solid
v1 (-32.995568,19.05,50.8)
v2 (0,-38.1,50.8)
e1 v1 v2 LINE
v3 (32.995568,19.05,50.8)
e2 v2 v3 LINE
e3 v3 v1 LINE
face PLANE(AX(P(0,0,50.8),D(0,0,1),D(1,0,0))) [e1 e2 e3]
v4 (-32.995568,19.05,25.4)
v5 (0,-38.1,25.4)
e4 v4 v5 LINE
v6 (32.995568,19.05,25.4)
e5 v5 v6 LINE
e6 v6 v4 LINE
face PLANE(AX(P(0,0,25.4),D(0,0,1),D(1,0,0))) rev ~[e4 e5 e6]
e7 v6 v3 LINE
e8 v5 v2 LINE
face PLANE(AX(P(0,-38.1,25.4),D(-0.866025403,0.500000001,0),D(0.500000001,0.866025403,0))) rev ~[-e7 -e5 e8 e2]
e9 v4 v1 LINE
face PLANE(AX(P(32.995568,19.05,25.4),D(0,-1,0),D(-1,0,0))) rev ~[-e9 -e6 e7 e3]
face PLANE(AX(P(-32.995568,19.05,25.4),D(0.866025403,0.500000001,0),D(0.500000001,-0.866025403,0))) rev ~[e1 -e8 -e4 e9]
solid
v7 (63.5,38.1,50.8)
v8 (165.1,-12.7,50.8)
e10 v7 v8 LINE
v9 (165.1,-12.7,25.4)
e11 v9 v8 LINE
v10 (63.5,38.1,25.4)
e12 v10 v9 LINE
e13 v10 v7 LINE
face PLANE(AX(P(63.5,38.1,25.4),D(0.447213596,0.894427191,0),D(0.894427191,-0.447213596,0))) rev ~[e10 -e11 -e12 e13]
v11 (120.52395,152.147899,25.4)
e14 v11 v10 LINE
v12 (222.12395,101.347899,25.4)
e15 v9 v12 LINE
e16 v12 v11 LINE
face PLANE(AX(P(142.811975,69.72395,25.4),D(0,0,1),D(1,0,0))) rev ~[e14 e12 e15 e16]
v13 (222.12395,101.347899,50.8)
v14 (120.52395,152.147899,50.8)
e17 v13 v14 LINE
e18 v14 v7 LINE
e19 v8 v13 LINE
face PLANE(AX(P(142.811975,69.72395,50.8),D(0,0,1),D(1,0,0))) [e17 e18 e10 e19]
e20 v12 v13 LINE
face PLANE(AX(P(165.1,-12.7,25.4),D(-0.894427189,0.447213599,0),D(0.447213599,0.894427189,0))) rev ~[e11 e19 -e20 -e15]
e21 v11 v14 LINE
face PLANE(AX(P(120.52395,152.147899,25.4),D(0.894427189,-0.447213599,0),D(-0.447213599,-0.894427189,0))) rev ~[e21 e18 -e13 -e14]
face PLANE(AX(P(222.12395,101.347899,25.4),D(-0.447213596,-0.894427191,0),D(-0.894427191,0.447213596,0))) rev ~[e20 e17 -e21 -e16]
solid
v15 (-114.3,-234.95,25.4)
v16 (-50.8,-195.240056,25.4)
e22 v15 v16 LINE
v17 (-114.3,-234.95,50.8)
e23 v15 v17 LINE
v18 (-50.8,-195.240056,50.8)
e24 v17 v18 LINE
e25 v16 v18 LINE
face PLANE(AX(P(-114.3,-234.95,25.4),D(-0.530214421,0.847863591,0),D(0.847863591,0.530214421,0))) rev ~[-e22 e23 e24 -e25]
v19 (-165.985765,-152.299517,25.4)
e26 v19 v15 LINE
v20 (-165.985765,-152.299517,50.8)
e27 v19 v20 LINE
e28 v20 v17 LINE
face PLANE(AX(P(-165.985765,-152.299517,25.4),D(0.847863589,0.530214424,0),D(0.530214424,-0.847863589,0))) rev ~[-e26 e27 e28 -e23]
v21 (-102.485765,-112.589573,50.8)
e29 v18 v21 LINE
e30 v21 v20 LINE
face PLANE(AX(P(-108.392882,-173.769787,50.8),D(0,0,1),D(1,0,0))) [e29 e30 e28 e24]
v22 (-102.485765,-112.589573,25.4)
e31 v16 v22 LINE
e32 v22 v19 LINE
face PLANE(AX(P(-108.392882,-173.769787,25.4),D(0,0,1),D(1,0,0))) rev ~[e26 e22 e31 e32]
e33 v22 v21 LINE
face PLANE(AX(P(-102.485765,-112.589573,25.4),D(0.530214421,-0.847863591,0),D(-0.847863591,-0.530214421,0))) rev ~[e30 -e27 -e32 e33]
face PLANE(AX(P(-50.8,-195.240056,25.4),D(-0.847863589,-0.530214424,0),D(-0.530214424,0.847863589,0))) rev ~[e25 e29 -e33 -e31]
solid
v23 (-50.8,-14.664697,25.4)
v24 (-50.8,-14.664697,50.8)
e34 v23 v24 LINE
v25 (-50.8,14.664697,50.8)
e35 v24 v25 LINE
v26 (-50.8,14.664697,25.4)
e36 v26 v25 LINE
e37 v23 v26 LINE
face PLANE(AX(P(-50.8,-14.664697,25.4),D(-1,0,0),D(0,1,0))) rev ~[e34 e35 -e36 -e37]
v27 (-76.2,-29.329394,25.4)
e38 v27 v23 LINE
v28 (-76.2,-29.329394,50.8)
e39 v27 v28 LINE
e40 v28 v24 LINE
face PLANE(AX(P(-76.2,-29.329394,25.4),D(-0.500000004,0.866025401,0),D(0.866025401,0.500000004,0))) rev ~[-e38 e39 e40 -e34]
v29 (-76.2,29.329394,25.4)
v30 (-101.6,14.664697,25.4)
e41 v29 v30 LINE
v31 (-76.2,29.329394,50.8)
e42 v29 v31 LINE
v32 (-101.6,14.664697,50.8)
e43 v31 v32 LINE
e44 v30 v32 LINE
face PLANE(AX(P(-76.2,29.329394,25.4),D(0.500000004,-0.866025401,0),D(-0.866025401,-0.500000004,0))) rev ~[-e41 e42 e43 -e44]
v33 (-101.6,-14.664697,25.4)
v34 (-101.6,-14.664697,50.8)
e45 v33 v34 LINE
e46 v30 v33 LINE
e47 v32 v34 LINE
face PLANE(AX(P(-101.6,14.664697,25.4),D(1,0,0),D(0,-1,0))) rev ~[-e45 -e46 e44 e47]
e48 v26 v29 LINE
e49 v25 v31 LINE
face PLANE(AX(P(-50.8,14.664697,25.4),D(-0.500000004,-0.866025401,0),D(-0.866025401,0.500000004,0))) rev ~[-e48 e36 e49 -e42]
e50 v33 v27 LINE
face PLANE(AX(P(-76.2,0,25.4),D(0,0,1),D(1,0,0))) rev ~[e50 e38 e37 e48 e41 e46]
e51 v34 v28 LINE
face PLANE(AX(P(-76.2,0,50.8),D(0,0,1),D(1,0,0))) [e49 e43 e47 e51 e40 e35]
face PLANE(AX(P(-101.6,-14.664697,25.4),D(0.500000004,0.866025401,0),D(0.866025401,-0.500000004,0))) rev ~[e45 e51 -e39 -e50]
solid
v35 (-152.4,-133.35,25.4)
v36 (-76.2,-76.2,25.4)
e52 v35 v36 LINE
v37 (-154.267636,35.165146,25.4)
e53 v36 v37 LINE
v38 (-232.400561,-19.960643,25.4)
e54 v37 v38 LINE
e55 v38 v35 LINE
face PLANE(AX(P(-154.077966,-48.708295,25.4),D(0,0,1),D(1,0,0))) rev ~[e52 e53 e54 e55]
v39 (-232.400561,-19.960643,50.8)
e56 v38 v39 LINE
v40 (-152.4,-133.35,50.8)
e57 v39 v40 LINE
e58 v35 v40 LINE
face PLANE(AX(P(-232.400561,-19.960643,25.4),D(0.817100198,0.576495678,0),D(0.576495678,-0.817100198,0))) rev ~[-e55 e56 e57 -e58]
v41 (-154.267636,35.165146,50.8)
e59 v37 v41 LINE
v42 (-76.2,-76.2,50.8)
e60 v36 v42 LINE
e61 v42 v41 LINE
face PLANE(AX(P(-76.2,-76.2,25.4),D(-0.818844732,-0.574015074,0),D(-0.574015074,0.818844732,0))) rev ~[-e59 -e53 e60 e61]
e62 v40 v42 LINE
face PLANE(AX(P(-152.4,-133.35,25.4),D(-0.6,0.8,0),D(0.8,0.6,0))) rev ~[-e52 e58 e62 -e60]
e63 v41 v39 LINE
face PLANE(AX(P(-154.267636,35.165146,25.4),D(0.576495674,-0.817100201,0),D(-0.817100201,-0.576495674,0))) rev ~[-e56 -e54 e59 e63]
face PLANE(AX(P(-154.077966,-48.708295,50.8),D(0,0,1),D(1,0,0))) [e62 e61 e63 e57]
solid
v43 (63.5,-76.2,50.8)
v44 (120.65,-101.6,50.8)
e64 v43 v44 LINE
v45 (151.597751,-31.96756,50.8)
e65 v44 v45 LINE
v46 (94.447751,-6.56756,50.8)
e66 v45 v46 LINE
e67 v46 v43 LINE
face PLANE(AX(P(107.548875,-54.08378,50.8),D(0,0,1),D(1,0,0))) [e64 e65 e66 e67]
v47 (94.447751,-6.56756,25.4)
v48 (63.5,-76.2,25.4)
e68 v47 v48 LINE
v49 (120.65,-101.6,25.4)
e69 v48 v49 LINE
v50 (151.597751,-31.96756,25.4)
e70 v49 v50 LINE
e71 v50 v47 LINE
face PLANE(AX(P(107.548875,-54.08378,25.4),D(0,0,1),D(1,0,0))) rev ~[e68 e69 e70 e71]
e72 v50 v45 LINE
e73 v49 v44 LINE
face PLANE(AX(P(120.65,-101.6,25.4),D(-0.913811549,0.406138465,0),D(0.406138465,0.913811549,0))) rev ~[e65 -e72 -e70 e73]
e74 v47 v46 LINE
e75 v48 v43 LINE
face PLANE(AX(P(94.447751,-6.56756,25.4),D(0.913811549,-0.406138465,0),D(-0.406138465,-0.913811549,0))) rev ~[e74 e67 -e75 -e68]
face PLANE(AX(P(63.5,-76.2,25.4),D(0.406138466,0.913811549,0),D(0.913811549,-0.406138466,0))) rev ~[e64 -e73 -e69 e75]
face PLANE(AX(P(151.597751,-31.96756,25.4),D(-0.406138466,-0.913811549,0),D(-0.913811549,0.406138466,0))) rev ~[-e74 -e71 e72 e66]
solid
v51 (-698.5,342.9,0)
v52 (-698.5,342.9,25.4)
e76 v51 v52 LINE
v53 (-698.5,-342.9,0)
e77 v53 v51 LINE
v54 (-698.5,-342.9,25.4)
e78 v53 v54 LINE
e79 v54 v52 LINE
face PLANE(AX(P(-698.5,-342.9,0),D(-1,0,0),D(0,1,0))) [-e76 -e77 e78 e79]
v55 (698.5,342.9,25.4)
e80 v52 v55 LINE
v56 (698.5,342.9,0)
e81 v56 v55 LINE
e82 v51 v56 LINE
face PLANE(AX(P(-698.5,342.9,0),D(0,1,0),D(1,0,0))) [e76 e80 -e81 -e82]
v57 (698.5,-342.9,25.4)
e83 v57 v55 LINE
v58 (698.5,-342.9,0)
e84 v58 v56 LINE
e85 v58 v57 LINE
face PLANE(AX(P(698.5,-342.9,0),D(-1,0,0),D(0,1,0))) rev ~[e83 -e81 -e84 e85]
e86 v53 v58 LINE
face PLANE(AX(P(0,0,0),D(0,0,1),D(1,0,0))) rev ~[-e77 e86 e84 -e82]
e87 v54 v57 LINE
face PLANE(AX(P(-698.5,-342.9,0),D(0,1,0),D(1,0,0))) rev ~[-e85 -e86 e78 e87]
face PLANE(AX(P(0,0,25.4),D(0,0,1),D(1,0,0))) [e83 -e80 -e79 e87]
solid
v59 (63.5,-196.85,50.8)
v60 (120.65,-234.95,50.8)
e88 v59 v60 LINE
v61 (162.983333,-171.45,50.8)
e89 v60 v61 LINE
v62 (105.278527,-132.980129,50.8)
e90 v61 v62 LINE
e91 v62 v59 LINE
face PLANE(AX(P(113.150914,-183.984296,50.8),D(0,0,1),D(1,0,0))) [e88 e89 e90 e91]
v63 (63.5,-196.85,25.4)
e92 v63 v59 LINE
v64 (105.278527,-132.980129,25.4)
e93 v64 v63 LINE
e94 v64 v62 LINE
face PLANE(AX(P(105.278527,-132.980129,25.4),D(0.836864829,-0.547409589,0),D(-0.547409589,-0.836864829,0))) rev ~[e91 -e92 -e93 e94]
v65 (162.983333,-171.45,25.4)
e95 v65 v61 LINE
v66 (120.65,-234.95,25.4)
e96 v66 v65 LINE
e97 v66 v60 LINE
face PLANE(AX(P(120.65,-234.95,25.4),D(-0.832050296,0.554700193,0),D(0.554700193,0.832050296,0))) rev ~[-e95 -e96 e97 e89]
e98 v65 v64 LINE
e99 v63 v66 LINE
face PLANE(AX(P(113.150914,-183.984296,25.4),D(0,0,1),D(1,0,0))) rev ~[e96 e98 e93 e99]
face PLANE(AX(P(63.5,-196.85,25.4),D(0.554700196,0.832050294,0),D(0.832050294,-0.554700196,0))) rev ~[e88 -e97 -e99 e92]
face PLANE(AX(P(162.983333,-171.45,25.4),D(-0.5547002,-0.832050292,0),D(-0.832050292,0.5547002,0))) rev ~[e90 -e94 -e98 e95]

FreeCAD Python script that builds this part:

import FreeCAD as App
import Part
import Sketcher
Q = App.Units.Quantity


def add_polygon(sketch, points):
    """Adds a closed chain of lines whose ends are joined by coincident constraints."""
    first, n = sketch.GeometryCount, len(points)
    for a, b in zip(points, points[1:] + points[:1]):
        sketch.addGeometry(Part.LineSegment(App.Vector(*a, 0), App.Vector(*b, 0)), False)
    for i in range(n):
        sketch.addConstraint(Sketcher.Constraint("Coincident", first + i, 2, first + (i + 1) % n, 1))

doc = App.newDocument("Part")
params = doc.addObject("Spreadsheet::Sheet", "Params")
for row, (alias, value) in enumerate([
    ("sketch1_width", "55 in"),
    ("sketch1_height", "27 in"),
    ("pad1_length", "1 in"),
    ("sketch2_length", "3 in"),
    ("sketch2_length2", "3.75 in"),
    ("pad2_length", "1 in"),
], start=1):
    params.set(f"A{row}", alias)
    params.set(f"B{row}", "=" + value)
    params.setAlias(f"B{row}", alias)

body = doc.addObject("PartDesign::Body", "Body")

# Sketch on XY plane
sketch1 = doc.addObject("Sketcher::SketchObject", "Sketch")
body.addObject(sketch1)
sketch1.AttachmentSupport = (doc.XY_Plane, [""])
sketch1.MapMode = "FlatFace"
add_polygon(sketch1, [(-698, 343), (-698, -343), (698, -343), (698, 343)])  # lines 0-3
sketch1.addConstraint([
    Sketcher.Constraint("Vertical", 0),
    Sketcher.Constraint("Horizontal", 1),
    Sketcher.Constraint("Vertical", 2),
    Sketcher.Constraint("Horizontal", 3),
    Sketcher.Constraint("Symmetric", 0, 2, 2, 2, -1, 1),
    Sketcher.Constraint("DistanceX", 1, 1, 1, 2, Q("55 in")),
    Sketcher.Constraint("DistanceY", 0, 2, 0, 1, Q("27 in")),
])
sketch1.setExpression("Constraints[9]", "Params.sketch1_width")
sketch1.setExpression("Constraints[10]", "Params.sketch1_height")
pad1 = doc.addObject("PartDesign::Pad", "Pad")
body.addObject(pad1)
pad1.Profile = sketch1
pad1.setExpression("Length", "Params.pad1_length")
body2 = doc.addObject("PartDesign::Body", "Body001")
body2.AllowCompound = True

# Sketch on XY plane
sketch2 = doc.addObject("Sketcher::SketchObject", "Sketch001")
body2.addObject(sketch2)
sketch2.AttachmentSupport = (doc.getObject("XY_Plane001"), [""])
sketch2.MapMode = "FlatFace"
sketch2.AttachmentOffset = App.Placement(App.Vector(0, 0, 1 * 25.4), App.Rotation())
add_polygon(sketch2, [(-232, -20), (-152, -133), (-76, -76), (-154, 35)])  # lines 0-3
add_polygon(sketch2, [(121, -235), (163, -171), (105, -133), (64, -197)])  # lines 4-7
add_polygon(sketch2, [(0, -38), (33, 19), (-33, 19)])  # lines 8-10
add_polygon(sketch2, [(-51, -15), (-51, 15), (-76, 29), (-102, 15), (-102, -15), (-76, -29)])  # lines 11-16
add_polygon(sketch2, [(64, -76), (121, -102), (152, -32), (94, -7)])  # lines 17-20
add_polygon(sketch2, [(64, 38), (165, -13), (222, 101), (121, 152)])  # lines 21-24
add_polygon(sketch2, [(-114, -235), (-51, -195), (-102, -113), (-166, -152)])  # lines 25-28
sketch2.addConstraint([
    Sketcher.Constraint("Horizontal", 9),
    Sketcher.Constraint("Vertical", 11),
    Sketcher.Constraint("Vertical", 14),
    Sketcher.Constraint("Symmetric", 12, 2, 15, 2, -1),
    Sketcher.Constraint("PointOnObject", 10, 2, -2),
    Sketcher.Constraint("Perpendicular", 0, 3),
    Sketcher.Constraint("Perpendicular", 4, 5),
    Sketcher.Constraint("Parallel", 5, 7),
    Sketcher.Constraint("Perpendicular", 8, 12),
    Sketcher.Constraint("Perpendicular", 10, 13),
    Sketcher.Constraint("Parallel", 12, 15),
    Sketcher.Constraint("Parallel", 13, 16),
    Sketcher.Constraint("Perpendicular", 17, 18),
    Sketcher.Constraint("Perpendicular", 18, 19),
    Sketcher.Constraint("Perpendicular", 19, 20),
    Sketcher.Constraint("Perpendicular", 21, 22),
    Sketcher.Constraint("Perpendicular", 22, 23),
    Sketcher.Constraint("Perpendicular", 23, 24),
    Sketcher.Constraint("Perpendicular", 25, 26),
    Sketcher.Constraint("Perpendicular", 26, 27),
    Sketcher.Constraint("Perpendicular", 27, 28),
    Sketcher.Constraint("Horizontal", 11, 2, 13, 2),
    Sketcher.Constraint("Horizontal", 14, 2, 16, 2),
    Sketcher.Constraint("Horizontal", 1, 2, 20, 2),
    Sketcher.Constraint("Horizontal", 7, 2, 28, 2),
    Sketcher.Constraint("Vertical", 1, 2, 12, 2),
    Sketcher.Constraint("Vertical", 7, 2, 17, 2),
    Sketcher.Constraint("Vertical", 6, 2, 20, 2),
    Sketcher.Constraint("Vertical", 20, 2, 24, 2),
    Sketcher.Constraint("Vertical", 16, 2, 25, 2),
    Sketcher.Constraint("Distance", 18, Q("3 in")),
    Sketcher.Constraint("DistanceX", 0, 2, -1, 1, Q("6 in")),
    Sketcher.Constraint("DistanceX", 1, 2, -1, 1, Q("3 in")),
    Sketcher.Constraint("DistanceY", 1, 2, -1, 1, Q("3 in")),
    Sketcher.Constraint("DistanceX", 11, 2, -1, 1, Q("2 in")),
    Sketcher.Constraint("DistanceY", 17, 2, -1, 1, Q("4 in")),
    Sketcher.Constraint("Angle", 8, Q("60 deg")),
    Sketcher.Constraint("DistanceY", 6, 2, 4, 2, Q("1 in")),
    Sketcher.Constraint("DistanceY", 7, 2, 0, 2, Q("4 in")),
    Sketcher.Constraint("DistanceY", 0, 2, 9, 2, Q("6 in")),
    Sketcher.Constraint("DistanceX", 20, 2, 21, 2, Q("4 in")),
    Sketcher.Constraint("DistanceY", 22, 2, 23, 2, Q("2 in")),
    Sketcher.Constraint("DistanceY", 10, 2, 24, 2, Q("3 in")),
    Sketcher.Constraint("DistanceX", -1, 1, 6, 2, Q("2.5 in")),
    Sketcher.Constraint("DistanceY", 10, 2, -1, 1, Q("1.5 in")),
    Sketcher.Constraint("DistanceX", 28, 2, -1, 1, Q("4.5 in")),
    Sketcher.Constraint("DistanceY", 4, 2, 0, 2, Q("1.5 in")),
    Sketcher.Constraint("Distance", 1, Q("3.75 in")),
    Sketcher.Constraint("DistanceX", -1, 1, 7, 2, Q("4.75 in")),
    Sketcher.Constraint("DistanceY", -1, 1, 22, 2, Q("101.347899 mm")),
    Sketcher.Constraint("DistanceY", 11, 1, 11, 2, Q("29.329394 mm")),
    Sketcher.Constraint("DistanceX", 3, 2, -1, 1, Q("232.400561 mm")),
    Sketcher.Constraint("DistanceY", 5, 2, -1, 1, Q("132.980129 mm")),
    Sketcher.Constraint("DistanceY", 3, 2, 2, 2, Q("55.125789 mm")),
    Sketcher.Constraint("DistanceX", 2, 2, 4, 2, Q("317.250969 mm")),
    Sketcher.Constraint("DistanceY", 26, 2, 15, 2, Q("83.260179 mm")),
    Sketcher.Constraint("DistanceY", 25, 2, 27, 2, Q("42.940539 mm")),
])
sketch2.setExpression("Constraints[59]", "Params.sketch2_length")
sketch2.setExpression("Constraints[76]", "Params.sketch2_length2")
pad2 = doc.addObject("PartDesign::Pad", "Pad001")
body2.addObject(pad2)
pad2.Profile = sketch2
pad2.setExpression("Length", "Params.pad2_length")

doc.recompute()
